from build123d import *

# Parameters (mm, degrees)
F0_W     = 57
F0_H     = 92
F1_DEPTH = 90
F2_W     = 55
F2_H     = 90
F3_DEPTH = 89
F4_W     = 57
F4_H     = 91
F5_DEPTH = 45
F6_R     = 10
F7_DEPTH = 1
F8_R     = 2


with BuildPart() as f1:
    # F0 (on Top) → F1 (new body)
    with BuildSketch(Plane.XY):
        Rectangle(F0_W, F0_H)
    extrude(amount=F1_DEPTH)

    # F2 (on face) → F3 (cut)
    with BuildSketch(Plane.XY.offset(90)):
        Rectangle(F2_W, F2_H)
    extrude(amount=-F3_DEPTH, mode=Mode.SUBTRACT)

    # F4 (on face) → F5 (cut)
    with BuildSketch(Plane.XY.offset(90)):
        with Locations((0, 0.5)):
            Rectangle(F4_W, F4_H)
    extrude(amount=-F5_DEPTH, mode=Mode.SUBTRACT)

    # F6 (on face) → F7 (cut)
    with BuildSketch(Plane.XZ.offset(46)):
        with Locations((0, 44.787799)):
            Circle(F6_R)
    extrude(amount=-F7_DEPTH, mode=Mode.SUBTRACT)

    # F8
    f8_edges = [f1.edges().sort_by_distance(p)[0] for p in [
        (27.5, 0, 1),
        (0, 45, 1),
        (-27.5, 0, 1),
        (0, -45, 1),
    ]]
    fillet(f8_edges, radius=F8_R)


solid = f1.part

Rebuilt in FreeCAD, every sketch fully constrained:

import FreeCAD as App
import Part
import Sketcher

V = App.Vector


def edges_at(feature, points):
    """Names of the edges that pass closest to the given points."""
    edges = feature.Shape.Edges
    near = lambda p: min(range(len(edges)), key=lambda i: edges[i].distToShape(Part.Vertex(*p))[0])
    return sorted({f"Edge{near(p) + 1}" for p in points})


def add_polygon(sketch, points):
    """Adds a closed chain of lines whose ends are joined by coincident constraints."""
    first, n = sketch.GeometryCount, len(points)
    for a, b in zip(points, points[1:] + points[:1]):
        sketch.addGeometry(Part.LineSegment(App.Vector(*a, 0), App.Vector(*b, 0)), False)
    for i in range(n):
        sketch.addConstraint(Sketcher.Constraint("Coincident", first + i, 2, first + (i + 1) % n, 1))

doc = App.newDocument("Part")
body = doc.addObject("PartDesign::Body", "Body")

# Sketch on XY plane
sketch1 = body.newObject("Sketcher::SketchObject", "Sketch")
sketch1.AttachmentSupport = (doc.getObject("XY_Plane"), [""])
sketch1.MapMode = "FlatFace"
add_polygon(sketch1, [(-28.5, 46), (-28.5, -46), (28.5, -46), (28.5, 46)])  # lines 0-3
sketch1.addConstraint([
    Sketcher.Constraint("Vertical", 0),
    Sketcher.Constraint("Horizontal", 1),
    Sketcher.Constraint("Vertical", 2),
    Sketcher.Constraint("Horizontal", 3),
    Sketcher.Constraint("Symmetric", 0, 2, 2, 2, -1, 1),
    Sketcher.Constraint("DistanceX", 1, 1, 1, 2, 57.0),
    Sketcher.Constraint("DistanceY", 0, 2, 0, 1, 92.0),
])
pad1 = body.newObject("PartDesign::Pad", "Pad")
pad1.Profile = sketch1
pad1.Length = 90

# Sketch on XY plane
sketch2 = body.newObject("Sketcher::SketchObject", "Sketch001")
sketch2.AttachmentSupport = (doc.getObject("XY_Plane"), [""])
sketch2.MapMode = "FlatFace"
sketch2.AttachmentOffset = App.Placement(V(0, 0, 90), App.Rotation())
add_polygon(sketch2, [(-27.5, 45), (-27.5, -45), (27.5, -45), (27.5, 45)])  # lines 0-3
sketch2.addConstraint([
    Sketcher.Constraint("Vertical", 0),
    Sketcher.Constraint("Horizontal", 1),
    Sketcher.Constraint("Vertical", 2),
    Sketcher.Constraint("Horizontal", 3),
    Sketcher.Constraint("Symmetric", 0, 2, 2, 2, -1, 1),
    Sketcher.Constraint("DistanceX", 1, 1, 1, 2, 55.0),
    Sketcher.Constraint("DistanceY", 0, 2, 0, 1, 90.0),
])
pocket1 = body.newObject("PartDesign::Pocket", "Pocket")
pocket1.Profile = sketch2
pocket1.Length = 89

# Sketch on XY plane
sketch3 = body.newObject("Sketcher::SketchObject", "Sketch002")
sketch3.AttachmentSupport = (doc.getObject("XY_Plane"), [""])
sketch3.MapMode = "FlatFace"
sketch3.AttachmentOffset = App.Placement(V(0, 0, 90), App.Rotation())
add_polygon(sketch3, [(-28.5, 46), (-28.5, -45), (28.5, -45), (28.5, 46)])  # lines 0-3
sketch3.addConstraint([
    Sketcher.Constraint("Vertical", 0),
    Sketcher.Constraint("Horizontal", 1),
    Sketcher.Constraint("Vertical", 2),
    Sketcher.Constraint("Horizontal", 3),
    Sketcher.Constraint("DistanceX", 1, 1, 1, 2, 57.0),
    Sketcher.Constraint("DistanceY", 0, 2, 0, 1, 91.0),
    Sketcher.Constraint("DistanceY", 0, 2, -1, 1, 45.0),
    Sketcher.Constraint("DistanceX", 0, 2, -1, 1, 28.5),
])
pocket2 = body.newObject("PartDesign::Pocket", "Pocket001")
pocket2.Profile = sketch3
pocket2.Length = 45

# Sketch on XZ plane
sketch4 = body.newObject("Sketcher::SketchObject", "Sketch003")
sketch4.AttachmentSupport = (doc.getObject("XZ_Plane"), [""])
sketch4.MapMode = "FlatFace"
sketch4.AttachmentOffset = App.Placement(V(0, 0, 46), App.Rotation())
sketch4.addGeometry(Part.Circle(V(0, 44.787799, 0), V(0, 0, 1), 10), False)
sketch4.addConstraint([
    Sketcher.Constraint("PointOnObject", 0, 3, -2),
    Sketcher.Constraint("Diameter", 0, 20.0),
    Sketcher.Constraint("DistanceY", -1, 1, 0, 3, 44.787799),
])
pocket3 = body.newObject("PartDesign::Pocket", "Pocket002")
pocket3.Profile = sketch4
pocket3.Length = 1
doc.recompute()

fillet = body.newObject("PartDesign::Fillet", "Fillet")
fillet.Base = (pocket3, edges_at(pocket3, [
    (27.5, 0, 1),
    (0, 45, 1),
    (-27.5, 0, 1),
    (0, -45, 1),
]))
fillet.Radius = 2

doc.recompute()
